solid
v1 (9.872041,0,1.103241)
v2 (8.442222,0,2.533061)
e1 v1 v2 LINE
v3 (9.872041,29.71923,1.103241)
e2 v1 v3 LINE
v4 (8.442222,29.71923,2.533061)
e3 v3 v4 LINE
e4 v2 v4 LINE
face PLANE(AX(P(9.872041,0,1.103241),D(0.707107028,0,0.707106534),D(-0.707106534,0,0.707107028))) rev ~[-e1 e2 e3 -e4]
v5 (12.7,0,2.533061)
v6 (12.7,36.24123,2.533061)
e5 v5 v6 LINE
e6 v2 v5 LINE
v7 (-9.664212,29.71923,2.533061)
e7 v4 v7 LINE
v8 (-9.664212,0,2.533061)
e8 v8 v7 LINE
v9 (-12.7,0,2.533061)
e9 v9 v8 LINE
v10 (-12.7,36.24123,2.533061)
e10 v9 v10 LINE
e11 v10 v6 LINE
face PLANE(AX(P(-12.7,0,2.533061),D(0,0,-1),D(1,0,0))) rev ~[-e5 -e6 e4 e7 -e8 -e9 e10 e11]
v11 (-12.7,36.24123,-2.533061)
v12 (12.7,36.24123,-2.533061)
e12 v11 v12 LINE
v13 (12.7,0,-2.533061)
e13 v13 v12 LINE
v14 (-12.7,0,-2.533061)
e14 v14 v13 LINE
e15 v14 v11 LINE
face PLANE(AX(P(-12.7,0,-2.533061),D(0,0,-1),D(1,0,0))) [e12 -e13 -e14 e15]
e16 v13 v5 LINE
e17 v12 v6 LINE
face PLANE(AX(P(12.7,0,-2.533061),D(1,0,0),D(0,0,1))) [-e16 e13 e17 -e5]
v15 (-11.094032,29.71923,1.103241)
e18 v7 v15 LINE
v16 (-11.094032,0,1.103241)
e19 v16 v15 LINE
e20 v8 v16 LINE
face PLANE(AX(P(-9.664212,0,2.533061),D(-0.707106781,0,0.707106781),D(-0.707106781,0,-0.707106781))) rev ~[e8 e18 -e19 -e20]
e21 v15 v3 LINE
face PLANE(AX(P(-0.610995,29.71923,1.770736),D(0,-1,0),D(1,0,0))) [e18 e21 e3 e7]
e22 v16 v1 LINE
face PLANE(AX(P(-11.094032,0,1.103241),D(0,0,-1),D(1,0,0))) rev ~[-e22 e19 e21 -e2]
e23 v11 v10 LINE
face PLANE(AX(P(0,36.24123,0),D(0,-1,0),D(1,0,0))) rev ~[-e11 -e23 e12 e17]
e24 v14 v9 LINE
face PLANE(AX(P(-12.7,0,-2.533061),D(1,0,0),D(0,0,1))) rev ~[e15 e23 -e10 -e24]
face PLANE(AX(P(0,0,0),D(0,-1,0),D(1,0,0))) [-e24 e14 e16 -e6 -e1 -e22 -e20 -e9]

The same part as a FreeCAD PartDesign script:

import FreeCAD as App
import Part
import Sketcher
Q = App.Units.Quantity


def add_polygon(sketch, points):
    """Adds a closed chain of lines whose ends are joined by coincident constraints."""
    first, n = sketch.GeometryCount, len(points)
    for a, b in zip(points, points[1:] + points[:1]):
        sketch.addGeometry(Part.LineSegment(App.Vector(*a, 0), App.Vector(*b, 0)), False)
    for i in range(n):
        sketch.addConstraint(Sketcher.Constraint("Coincident", first + i, 2, first + (i + 1) % n, 1))

doc = App.newDocument("Part")
params = doc.addObject("Spreadsheet::Sheet", "Params")
for row, (alias, value) in enumerate([
    ("sketch1_width", "1 in"),
    ("pad1_length", "36.24123 mm"),
    ("pocket1_length", "29.71923 mm"),
], start=1):
    params.set(f"A{row}", alias)
    params.set(f"B{row}", "=" + value)
    params.setAlias(f"B{row}", alias)

body = doc.addObject("PartDesign::Body", "Body")

# Sketch on XZ plane
sketch1 = body.newObject("Sketcher::SketchObject", "Sketch")
sketch1.AttachmentSupport = (doc.getObject("XZ_Plane"), [""])
sketch1.MapMode = "FlatFace"
add_polygon(sketch1, [(-13, 3), (-13, -3), (13, -3), (13, 3)])  # lines 0-3
sketch1.addConstraint(Sketcher.Constraint("Vertical", 0))
sketch1.addConstraint(Sketcher.Constraint("Horizontal", 1))
sketch1.addConstraint(Sketcher.Constraint("Vertical", 2))
sketch1.addConstraint(Sketcher.Constraint("Horizontal", 3))
sketch1.addConstraint(Sketcher.Constraint("Symmetric", 0, 2, 2, 2, -1, 1))
sketch1.addConstraint(Sketcher.Constraint("DistanceX", 1, 1, 1, 2, Q("1 in")))
sketch1.addConstraint(Sketcher.Constraint("DistanceY", 0, 2, 0, 1, Q("5.066122 mm")))
sketch1.setExpression("Constraints[9]", "Params.sketch1_width")
pad1 = body.newObject("PartDesign::Pad", "Pad")
pad1.Profile = sketch1
pad1.setExpression("Length", "Params.pad1_length")
pad1.Reversed = True

# Sketch on XZ plane
sketch2 = body.newObject("Sketcher::SketchObject", "Sketch001")
sketch2.AttachmentSupport = (doc.getObject("XZ_Plane"), [""])
sketch2.MapMode = "FlatFace"
add_polygon(sketch2, [(8.4, 2.5), (-9.7, 2.5), (-11.1, 1.1), (9.9, 1.1)])  # lines 0-3
sketch2.addConstraint(Sketcher.Constraint("Horizontal", 0))
sketch2.addConstraint(Sketcher.Constraint("Horizontal", 2))
sketch2.addConstraint(Sketcher.Constraint("Perpendicular", 1, 3))
sketch2.addConstraint(Sketcher.Constraint("Equal", 1, 3))
sketch2.addConstraint(Sketcher.Constraint("Distance", 1, Q("2.022071 mm")))
sketch2.addConstraint(Sketcher.Constraint("DistanceX", 0, 2, 0, 1, Q("18.106434 mm")))
sketch2.addConstraint(Sketcher.Constraint("DistanceX", 0, 2, -1, 1, Q("9.664212 mm")))
sketch2.addConstraint(Sketcher.Constraint("DistanceY", -1, 1, 0, 2, Q("2.533061 mm")))
pocket1 = body.newObject("PartDesign::Pocket", "Pocket")
pocket1.Profile = sketch2
pocket1.setExpression("Length", "Params.pocket1_length")

doc.recompute()
